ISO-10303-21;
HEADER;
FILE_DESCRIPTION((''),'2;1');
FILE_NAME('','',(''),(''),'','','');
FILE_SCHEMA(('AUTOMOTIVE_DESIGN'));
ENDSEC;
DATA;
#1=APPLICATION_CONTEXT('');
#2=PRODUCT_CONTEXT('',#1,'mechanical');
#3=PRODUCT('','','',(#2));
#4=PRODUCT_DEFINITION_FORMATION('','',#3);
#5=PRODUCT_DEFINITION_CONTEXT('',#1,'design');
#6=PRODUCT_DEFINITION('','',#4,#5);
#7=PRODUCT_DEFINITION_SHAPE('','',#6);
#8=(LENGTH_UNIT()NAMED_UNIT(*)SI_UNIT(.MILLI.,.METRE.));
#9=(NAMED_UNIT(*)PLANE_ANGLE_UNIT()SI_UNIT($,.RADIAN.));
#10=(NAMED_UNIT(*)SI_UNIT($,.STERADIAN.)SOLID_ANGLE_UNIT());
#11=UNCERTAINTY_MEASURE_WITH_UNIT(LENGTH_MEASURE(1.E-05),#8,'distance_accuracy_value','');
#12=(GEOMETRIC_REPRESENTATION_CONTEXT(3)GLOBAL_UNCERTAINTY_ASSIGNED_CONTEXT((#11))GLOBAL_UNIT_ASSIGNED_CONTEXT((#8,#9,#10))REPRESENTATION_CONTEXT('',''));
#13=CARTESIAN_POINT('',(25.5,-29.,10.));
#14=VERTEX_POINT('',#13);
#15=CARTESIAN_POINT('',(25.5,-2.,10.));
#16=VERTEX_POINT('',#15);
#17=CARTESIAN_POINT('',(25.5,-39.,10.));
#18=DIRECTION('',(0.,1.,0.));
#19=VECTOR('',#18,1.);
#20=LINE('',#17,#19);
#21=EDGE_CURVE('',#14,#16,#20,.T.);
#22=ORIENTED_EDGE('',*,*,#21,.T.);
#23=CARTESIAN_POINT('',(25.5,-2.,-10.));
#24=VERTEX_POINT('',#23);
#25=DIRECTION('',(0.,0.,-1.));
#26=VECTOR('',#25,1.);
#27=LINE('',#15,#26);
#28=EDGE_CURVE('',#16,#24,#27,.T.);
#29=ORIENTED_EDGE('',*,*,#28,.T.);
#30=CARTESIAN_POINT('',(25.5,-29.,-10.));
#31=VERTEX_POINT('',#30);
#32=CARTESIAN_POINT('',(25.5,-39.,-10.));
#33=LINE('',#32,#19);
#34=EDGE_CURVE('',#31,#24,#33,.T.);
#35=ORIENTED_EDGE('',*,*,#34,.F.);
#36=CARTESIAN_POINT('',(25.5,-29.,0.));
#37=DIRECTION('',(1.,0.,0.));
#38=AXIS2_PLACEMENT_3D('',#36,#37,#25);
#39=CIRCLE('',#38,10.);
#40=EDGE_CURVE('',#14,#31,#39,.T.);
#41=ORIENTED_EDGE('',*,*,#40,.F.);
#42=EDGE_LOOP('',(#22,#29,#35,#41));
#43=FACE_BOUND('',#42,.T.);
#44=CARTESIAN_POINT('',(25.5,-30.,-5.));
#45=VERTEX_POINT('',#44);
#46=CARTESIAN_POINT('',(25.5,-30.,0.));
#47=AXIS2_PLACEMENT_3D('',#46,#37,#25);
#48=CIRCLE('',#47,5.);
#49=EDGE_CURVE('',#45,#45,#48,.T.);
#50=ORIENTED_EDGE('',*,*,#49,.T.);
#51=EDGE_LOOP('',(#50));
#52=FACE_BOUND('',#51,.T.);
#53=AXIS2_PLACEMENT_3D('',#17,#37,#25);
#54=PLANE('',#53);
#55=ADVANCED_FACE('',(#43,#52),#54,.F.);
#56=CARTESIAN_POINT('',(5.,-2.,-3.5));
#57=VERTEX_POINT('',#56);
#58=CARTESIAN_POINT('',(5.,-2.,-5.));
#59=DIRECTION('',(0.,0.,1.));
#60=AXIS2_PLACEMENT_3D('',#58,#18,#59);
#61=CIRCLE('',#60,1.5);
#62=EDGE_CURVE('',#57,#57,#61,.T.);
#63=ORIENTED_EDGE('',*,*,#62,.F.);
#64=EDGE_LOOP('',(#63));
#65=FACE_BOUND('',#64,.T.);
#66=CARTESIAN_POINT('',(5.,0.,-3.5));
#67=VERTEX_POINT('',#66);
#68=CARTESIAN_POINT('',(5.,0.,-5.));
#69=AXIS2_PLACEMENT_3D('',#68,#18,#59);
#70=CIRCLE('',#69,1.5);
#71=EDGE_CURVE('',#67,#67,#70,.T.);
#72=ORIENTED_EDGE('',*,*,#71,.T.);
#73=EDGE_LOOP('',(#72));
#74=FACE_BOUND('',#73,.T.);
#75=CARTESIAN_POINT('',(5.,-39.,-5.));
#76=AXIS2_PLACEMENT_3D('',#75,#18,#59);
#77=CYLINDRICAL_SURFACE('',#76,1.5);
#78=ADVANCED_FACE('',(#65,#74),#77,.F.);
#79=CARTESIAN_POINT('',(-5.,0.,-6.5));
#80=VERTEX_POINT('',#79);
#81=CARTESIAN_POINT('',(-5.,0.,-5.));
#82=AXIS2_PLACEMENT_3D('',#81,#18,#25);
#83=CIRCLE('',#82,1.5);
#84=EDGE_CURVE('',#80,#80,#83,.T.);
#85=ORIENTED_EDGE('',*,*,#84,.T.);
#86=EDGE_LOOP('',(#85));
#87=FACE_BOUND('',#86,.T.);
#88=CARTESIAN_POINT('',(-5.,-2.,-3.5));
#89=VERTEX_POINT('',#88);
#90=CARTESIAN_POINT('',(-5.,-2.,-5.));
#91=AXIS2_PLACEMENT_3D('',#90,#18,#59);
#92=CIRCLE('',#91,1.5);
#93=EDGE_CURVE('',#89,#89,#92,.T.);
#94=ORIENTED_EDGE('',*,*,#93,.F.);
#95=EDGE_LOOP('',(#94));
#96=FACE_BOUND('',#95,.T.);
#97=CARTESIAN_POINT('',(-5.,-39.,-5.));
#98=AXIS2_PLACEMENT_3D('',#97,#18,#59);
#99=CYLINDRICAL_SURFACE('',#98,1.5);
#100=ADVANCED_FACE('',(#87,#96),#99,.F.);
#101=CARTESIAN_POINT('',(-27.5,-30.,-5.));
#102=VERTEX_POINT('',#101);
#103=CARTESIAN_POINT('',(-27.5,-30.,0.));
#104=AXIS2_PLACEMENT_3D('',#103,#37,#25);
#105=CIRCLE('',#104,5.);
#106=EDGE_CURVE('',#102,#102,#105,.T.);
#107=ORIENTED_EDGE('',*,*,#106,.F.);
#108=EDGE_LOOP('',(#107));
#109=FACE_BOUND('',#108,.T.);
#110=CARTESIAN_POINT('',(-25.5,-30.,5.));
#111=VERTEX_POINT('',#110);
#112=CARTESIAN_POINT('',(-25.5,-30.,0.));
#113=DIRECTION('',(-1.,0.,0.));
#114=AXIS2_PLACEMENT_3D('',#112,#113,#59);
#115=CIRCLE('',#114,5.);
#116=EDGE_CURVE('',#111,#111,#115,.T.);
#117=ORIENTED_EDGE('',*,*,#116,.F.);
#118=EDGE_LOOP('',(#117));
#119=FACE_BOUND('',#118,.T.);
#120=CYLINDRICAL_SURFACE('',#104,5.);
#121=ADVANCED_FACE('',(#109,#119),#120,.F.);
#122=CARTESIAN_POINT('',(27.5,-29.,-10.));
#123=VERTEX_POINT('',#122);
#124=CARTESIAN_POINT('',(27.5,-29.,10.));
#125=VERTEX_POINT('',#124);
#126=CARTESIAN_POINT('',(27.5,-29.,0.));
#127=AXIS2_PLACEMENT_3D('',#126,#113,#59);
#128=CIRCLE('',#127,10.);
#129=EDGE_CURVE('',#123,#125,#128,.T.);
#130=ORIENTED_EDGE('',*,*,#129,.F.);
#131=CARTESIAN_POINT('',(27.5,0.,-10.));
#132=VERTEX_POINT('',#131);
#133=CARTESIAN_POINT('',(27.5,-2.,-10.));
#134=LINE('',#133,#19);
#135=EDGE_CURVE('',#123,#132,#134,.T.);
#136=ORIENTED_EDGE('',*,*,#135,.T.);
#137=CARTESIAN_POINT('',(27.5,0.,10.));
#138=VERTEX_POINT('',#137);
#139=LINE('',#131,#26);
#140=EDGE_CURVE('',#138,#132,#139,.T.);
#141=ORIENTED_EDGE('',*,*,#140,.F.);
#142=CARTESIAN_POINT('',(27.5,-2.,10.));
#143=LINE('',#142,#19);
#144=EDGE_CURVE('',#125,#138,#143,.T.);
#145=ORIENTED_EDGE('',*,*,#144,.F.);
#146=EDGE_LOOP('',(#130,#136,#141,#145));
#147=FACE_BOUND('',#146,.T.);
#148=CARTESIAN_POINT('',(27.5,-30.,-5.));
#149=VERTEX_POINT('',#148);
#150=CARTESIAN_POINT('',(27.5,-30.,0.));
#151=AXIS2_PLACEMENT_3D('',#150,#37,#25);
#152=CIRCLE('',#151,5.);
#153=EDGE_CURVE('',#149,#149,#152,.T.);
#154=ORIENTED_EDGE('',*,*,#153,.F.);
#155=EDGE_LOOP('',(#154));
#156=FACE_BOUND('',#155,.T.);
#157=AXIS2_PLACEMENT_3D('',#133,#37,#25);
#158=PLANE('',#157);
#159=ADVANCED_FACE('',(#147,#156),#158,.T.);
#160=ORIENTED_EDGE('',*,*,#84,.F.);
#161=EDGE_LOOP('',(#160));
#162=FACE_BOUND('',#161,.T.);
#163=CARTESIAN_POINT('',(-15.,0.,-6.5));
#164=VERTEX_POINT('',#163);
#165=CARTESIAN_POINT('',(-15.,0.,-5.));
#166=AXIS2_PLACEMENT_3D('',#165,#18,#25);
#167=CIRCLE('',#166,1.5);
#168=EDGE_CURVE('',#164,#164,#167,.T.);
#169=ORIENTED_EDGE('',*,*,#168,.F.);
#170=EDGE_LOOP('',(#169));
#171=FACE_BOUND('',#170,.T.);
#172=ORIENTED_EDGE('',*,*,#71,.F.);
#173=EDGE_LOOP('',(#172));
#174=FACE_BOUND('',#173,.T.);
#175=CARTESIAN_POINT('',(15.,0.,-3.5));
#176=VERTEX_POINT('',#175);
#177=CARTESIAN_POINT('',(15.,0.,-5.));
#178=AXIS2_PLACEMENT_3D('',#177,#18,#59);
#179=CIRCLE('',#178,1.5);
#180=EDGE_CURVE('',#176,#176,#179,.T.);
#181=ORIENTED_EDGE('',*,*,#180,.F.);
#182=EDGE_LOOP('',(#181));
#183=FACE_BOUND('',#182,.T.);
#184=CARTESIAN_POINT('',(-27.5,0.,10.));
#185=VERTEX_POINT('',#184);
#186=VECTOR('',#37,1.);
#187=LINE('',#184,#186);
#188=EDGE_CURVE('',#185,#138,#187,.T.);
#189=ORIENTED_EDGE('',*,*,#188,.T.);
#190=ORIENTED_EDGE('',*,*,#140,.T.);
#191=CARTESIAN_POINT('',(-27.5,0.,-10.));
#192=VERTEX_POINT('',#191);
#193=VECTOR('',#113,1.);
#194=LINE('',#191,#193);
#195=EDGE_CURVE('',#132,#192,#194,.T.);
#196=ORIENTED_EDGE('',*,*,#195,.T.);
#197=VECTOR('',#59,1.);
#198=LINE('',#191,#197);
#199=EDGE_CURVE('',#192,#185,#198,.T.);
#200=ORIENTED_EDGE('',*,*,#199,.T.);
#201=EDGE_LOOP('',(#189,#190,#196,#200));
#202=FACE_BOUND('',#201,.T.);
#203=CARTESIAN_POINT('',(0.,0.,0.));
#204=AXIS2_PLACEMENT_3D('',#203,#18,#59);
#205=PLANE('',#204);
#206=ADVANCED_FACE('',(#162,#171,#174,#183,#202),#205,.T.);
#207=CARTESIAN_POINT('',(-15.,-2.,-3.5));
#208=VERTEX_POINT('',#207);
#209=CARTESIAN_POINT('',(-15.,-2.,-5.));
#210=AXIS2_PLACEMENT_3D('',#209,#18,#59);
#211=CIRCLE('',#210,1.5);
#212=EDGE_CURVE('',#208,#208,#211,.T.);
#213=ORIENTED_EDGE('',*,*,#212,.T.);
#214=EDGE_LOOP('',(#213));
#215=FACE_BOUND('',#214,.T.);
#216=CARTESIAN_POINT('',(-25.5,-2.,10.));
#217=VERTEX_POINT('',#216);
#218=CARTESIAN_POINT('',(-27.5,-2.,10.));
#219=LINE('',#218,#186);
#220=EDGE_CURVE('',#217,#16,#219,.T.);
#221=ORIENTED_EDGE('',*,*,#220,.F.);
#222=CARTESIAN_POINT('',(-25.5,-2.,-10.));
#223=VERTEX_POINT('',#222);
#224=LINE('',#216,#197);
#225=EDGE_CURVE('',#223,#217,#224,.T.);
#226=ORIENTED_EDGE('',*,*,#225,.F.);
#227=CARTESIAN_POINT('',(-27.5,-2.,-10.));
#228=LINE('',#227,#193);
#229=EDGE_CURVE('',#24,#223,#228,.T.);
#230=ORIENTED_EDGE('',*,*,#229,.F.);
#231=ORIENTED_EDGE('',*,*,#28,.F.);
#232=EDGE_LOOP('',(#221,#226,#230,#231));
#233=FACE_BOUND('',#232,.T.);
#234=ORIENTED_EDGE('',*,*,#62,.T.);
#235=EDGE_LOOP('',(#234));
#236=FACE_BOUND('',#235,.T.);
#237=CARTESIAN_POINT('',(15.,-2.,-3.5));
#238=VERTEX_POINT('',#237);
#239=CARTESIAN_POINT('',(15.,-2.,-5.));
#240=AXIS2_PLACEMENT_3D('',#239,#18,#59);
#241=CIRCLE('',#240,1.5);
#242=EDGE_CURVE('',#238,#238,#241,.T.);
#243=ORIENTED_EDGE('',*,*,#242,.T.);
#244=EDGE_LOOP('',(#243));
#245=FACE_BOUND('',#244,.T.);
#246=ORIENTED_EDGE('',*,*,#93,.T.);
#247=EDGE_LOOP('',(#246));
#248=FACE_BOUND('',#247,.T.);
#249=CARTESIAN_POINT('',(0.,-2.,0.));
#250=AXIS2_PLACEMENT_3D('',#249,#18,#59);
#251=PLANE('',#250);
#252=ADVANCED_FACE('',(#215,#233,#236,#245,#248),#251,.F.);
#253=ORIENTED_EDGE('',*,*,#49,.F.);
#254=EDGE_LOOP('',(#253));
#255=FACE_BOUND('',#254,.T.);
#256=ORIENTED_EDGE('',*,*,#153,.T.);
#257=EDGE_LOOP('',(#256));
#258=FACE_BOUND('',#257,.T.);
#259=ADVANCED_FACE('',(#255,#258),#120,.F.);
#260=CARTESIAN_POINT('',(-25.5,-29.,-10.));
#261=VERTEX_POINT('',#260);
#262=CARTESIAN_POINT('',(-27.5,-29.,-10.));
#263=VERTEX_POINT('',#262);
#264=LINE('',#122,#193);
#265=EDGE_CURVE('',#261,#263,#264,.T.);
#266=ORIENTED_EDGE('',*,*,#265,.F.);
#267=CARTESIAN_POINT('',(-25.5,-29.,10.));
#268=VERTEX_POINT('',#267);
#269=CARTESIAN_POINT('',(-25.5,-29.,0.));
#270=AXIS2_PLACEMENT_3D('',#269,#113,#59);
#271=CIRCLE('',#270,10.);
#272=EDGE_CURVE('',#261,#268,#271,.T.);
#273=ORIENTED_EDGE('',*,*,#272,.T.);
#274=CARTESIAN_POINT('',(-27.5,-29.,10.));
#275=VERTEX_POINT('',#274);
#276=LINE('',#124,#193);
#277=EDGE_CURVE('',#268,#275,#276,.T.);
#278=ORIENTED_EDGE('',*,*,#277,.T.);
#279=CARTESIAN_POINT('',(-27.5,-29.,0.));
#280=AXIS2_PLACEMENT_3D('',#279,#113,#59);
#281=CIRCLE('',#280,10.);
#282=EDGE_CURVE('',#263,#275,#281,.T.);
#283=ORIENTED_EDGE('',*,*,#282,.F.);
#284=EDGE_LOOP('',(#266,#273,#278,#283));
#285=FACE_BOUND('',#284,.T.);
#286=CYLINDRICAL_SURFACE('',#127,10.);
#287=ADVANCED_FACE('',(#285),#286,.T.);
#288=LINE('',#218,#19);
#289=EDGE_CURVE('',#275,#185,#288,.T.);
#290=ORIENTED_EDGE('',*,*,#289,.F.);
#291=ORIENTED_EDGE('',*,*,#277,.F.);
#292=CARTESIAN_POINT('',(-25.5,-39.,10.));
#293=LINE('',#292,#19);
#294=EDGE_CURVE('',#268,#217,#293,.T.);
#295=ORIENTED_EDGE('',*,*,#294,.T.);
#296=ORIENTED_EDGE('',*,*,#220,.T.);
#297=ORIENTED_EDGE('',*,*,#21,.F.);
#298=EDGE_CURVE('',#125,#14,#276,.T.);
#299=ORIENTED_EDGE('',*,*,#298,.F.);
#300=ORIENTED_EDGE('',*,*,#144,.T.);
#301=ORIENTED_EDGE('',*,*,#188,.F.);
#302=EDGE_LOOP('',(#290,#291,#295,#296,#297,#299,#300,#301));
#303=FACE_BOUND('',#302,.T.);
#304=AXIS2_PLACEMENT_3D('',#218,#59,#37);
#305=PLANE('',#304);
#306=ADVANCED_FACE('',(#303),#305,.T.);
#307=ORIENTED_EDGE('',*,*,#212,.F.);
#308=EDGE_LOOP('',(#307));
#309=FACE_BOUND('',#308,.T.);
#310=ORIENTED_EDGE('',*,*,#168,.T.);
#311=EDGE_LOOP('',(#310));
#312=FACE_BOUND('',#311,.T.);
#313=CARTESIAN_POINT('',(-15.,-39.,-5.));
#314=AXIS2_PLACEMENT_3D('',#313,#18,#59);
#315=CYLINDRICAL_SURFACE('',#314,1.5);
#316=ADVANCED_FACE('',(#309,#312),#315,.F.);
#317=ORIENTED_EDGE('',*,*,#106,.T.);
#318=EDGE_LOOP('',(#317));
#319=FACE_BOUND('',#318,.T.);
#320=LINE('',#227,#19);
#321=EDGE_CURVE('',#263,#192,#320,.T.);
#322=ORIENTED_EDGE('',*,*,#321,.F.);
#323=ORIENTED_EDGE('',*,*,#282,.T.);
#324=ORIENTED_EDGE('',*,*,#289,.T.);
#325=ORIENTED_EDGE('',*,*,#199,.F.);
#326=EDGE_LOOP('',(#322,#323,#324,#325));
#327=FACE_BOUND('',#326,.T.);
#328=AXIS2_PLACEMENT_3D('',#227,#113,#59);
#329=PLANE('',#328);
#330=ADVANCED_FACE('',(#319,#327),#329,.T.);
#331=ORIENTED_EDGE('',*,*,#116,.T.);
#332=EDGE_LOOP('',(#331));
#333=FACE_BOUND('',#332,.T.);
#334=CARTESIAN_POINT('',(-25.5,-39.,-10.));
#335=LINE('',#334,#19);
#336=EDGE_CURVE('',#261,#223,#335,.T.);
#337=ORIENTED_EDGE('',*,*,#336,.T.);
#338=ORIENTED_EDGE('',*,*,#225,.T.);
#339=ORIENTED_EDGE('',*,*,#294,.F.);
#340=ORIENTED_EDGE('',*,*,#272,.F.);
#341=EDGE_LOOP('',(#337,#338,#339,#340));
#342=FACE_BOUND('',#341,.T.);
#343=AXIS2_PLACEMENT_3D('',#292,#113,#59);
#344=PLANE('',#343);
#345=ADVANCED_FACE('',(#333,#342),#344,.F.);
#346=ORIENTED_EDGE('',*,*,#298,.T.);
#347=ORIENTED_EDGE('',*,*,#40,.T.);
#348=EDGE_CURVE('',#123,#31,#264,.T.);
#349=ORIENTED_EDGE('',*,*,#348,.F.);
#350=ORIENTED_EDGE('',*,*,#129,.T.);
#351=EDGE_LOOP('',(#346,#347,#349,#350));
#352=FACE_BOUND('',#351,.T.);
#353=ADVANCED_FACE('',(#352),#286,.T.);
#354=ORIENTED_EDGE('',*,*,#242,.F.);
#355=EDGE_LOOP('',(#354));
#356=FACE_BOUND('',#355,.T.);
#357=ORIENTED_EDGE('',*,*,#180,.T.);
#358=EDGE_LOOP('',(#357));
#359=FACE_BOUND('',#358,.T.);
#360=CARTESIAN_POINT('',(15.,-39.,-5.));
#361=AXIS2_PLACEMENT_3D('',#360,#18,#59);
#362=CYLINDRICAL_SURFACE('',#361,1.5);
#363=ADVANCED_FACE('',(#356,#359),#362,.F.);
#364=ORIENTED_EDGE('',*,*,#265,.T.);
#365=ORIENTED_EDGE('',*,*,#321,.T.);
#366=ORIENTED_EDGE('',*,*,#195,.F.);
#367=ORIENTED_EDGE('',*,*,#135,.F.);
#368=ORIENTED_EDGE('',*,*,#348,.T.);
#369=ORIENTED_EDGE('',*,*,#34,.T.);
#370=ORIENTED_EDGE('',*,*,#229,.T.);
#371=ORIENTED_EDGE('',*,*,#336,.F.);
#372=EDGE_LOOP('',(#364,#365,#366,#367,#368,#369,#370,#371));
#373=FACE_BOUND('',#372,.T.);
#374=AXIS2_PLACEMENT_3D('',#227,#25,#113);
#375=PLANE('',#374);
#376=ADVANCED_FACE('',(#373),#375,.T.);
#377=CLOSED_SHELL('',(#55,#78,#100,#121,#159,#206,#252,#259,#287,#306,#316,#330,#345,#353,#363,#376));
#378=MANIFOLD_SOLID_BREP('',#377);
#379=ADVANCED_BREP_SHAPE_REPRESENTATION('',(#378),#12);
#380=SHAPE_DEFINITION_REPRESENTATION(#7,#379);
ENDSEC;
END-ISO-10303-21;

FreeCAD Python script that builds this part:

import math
import FreeCAD as App
import Part
import Sketcher

doc = App.newDocument("Part")
params = doc.addObject("Spreadsheet::Sheet", "Params")
for row, (alias, value) in enumerate([
    ("sketch1_width", "55 mm"),
    ("sketch1_height", "20 mm"),
    ("pad1_length", "2 mm"),
    ("sketch2_width", "2 mm"),
    ("sketch2_height", "20 mm"),
    ("pad2_length", "37 mm"),
    ("sketch3_diameter", "10 mm"),
    ("sketch4_radius", "10 mm"),
    ("sketch5_diameter", "3 mm"),
], start=1):
    params.set(f"A{row}", alias)
    params.set(f"B{row}", "=" + value)
    params.setAlias(f"B{row}", alias)

body = doc.addObject("PartDesign::Body", "Body")

# Sketch on XZ plane
sketch1 = body.newObject("Sketcher::SketchObject", "Sketch")
sketch1.AttachmentSupport = (doc.getObject("XZ_Plane"), [""])
sketch1.MapMode = "FlatFace"
sketch1.addGeometry(Part.LineSegment(App.Vector(-28, -10, 0), App.Vector(-28, 10, 0)), False)
sketch1.addGeometry(Part.LineSegment(App.Vector(-28, 10, 0), App.Vector(28, 10, 0)), False)
sketch1.addGeometry(Part.LineSegment(App.Vector(28, 10, 0), App.Vector(28, -10, 0)), False)
sketch1.addGeometry(Part.LineSegment(App.Vector(28, -10, 0), App.Vector(-28, -10, 0)), False)
sketch1.addConstraint(Sketcher.Constraint("Coincident", 0, 2, 1, 1))
sketch1.addConstraint(Sketcher.Constraint("Coincident", 1, 2, 2, 1))
sketch1.addConstraint(Sketcher.Constraint("Coincident", 2, 2, 3, 1))
sketch1.addConstraint(Sketcher.Constraint("Coincident", 3, 2, 0, 1))
sketch1.addConstraint(Sketcher.Constraint("Vertical", 0))
sketch1.addConstraint(Sketcher.Constraint("Horizontal", 1))
sketch1.addConstraint(Sketcher.Constraint("Vertical", 2))
sketch1.addConstraint(Sketcher.Constraint("Horizontal", 3))
sketch1.addConstraint(Sketcher.Constraint("Symmetric", 0, 2, 2, 2, -1, 1))
sketch1.addConstraint(Sketcher.Constraint("DistanceX", 1, 1, 1, 2, 55.0))
sketch1.addConstraint(Sketcher.Constraint("DistanceY", 0, 1, 0, 2, 20.0))
sketch1.setExpression("Constraints[9]", "Params.sketch1_width")
sketch1.setExpression("Constraints[10]", "Params.sketch1_height")
pad1 = body.newObject("PartDesign::Pad", "Pad")
pad1.Profile = sketch1
pad1.setExpression("Length", "Params.pad1_length")

# Sketch on XZ plane
sketch2 = body.newObject("Sketcher::SketchObject", "Sketch001")
sketch2.AttachmentSupport = (doc.getObject("XZ_Plane"), [""])
sketch2.MapMode = "FlatFace"
sketch2.AttachmentOffset = App.Placement(App.Vector(0, 0, 2), App.Rotation())
sketch2.addGeometry(Part.LineSegment(App.Vector(-27.5, 10, 0), App.Vector(-27.5, -10, 0)), False)
sketch2.addGeometry(Part.LineSegment(App.Vector(-27.5, -10, 0), App.Vector(-25.5, -10, 0)), False)
sketch2.addGeometry(Part.LineSegment(App.Vector(-25.5, -10, 0), App.Vector(-25.5, 10, 0)), False)
sketch2.addGeometry(Part.LineSegment(App.Vector(-25.5, 10, 0), App.Vector(-27.5, 10, 0)), False)
sketch2.addGeometry(Part.LineSegment(App.Vector(25.5, 10, 0), App.Vector(25.5, -10, 0)), False)
sketch2.addGeometry(Part.LineSegment(App.Vector(25.5, -10, 0), App.Vector(27.5, -10, 0)), False)
sketch2.addGeometry(Part.LineSegment(App.Vector(27.5, -10, 0), App.Vector(27.5, 10, 0)), False)
sketch2.addGeometry(Part.LineSegment(App.Vector(27.5, 10, 0), App.Vector(25.5, 10, 0)), False)
sketch2.addConstraint(Sketcher.Constraint("Coincident", 0, 2, 1, 1))
sketch2.addConstraint(Sketcher.Constraint("Coincident", 1, 2, 2, 1))
sketch2.addConstraint(Sketcher.Constraint("Coincident", 2, 2, 3, 1))
sketch2.addConstraint(Sketcher.Constraint("Coincident", 3, 2, 0, 1))
sketch2.addConstraint(Sketcher.Constraint("Coincident", 4, 2, 5, 1))
sketch2.addConstraint(Sketcher.Constraint("Coincident", 5, 2, 6, 1))
sketch2.addConstraint(Sketcher.Constraint("Coincident", 6, 2, 7, 1))
sketch2.addConstraint(Sketcher.Constraint("Coincident", 7, 2, 4, 1))
sketch2.addConstraint(Sketcher.Constraint("Vertical", 0))
sketch2.addConstraint(Sketcher.Constraint("Horizontal", 1))
sketch2.addConstraint(Sketcher.Constraint("Vertical", 2))
sketch2.addConstraint(Sketcher.Constraint("Horizontal", 3))
sketch2.addConstraint(Sketcher.Constraint("Vertical", 4))
sketch2.addConstraint(Sketcher.Constraint("Horizontal", 5))
sketch2.addConstraint(Sketcher.Constraint("Vertical", 6))
sketch2.addConstraint(Sketcher.Constraint("Horizontal", 7))
sketch2.addConstraint(Sketcher.Constraint("Symmetric", 2, 2, 4, 2, -1, 1))
sketch2.addConstraint(Sketcher.Constraint("Symmetric", 0, 2, 6, 2, -1, 1))
sketch2.addConstraint(Sketcher.Constraint("Horizontal", 1, 2, 4, 2))
sketch2.addConstraint(Sketcher.Constraint("DistanceX", 1, 1, 1, 2, 2.0))
sketch2.addConstraint(Sketcher.Constraint("DistanceY", 0, 2, 0, 1, 20.0))
sketch2.addConstraint(Sketcher.Constraint("DistanceX", 1, 2, 4, 2, 51.0))
sketch2.setExpression("Constraints[19]", "Params.sketch2_width")
sketch2.setExpression("Constraints[20]", "Params.sketch2_height")
pad2 = body.newObject("PartDesign::Pad", "Pad001")
pad2.Profile = sketch2
pad2.setExpression("Length", "Params.pad2_length")

# Sketch on YZ plane
sketch3 = body.newObject("Sketcher::SketchObject", "Sketch002")
sketch3.AttachmentSupport = (doc.getObject("YZ_Plane"), [""])
sketch3.MapMode = "FlatFace"
sketch3.AttachmentOffset = App.Placement(App.Vector(0, 0, 27.5), App.Rotation())
sketch3.addGeometry(Part.Circle(App.Vector(-30, 0, 0), App.Vector(0, 0, 1), 5), False)
sketch3.addConstraint(Sketcher.Constraint("PointOnObject", 0, 3, -1))
sketch3.addConstraint(Sketcher.Constraint("Diameter", 0, 10.0))
sketch3.addConstraint(Sketcher.Constraint("DistanceX", 0, 3, -1, 1, 30.0))
sketch3.setExpression("Constraints[1]", "Params.sketch3_diameter")
pocket1 = body.newObject("PartDesign::Pocket", "Pocket")
pocket1.Profile = sketch3
pocket1.Type = "ThroughAll"

# Sketch on YZ plane
sketch4 = body.newObject("Sketcher::SketchObject", "Sketch003")
sketch4.AttachmentSupport = (doc.getObject("YZ_Plane"), [""])
sketch4.MapMode = "FlatFace"
sketch4.AttachmentOffset = App.Placement(App.Vector(0, 0, -27.5), App.Rotation())
sketch4.addGeometry(Part.ArcOfCircle(Part.Circle(App.Vector(-29, 0, 0), App.Vector(0, 0, 1), 10), math.radians(180), math.radians(270)), False)
sketch4.addGeometry(Part.LineSegment(App.Vector(-29, -10, 0), App.Vector(-39, -10, 0)), False)
sketch4.addGeometry(Part.LineSegment(App.Vector(-39, -10, 0), App.Vector(-39, 0, 0)), False)
sketch4.addGeometry(Part.LineSegment(App.Vector(-39, 10, 0), App.Vector(-29, 10, 0)), False)
sketch4.addGeometry(Part.ArcOfCircle(Part.Circle(App.Vector(-29, 0, 0), App.Vector(0, 0, 1), 10), math.radians(90), math.radians(180)), False)
sketch4.addGeometry(Part.LineSegment(App.Vector(-39, 0, 0), App.Vector(-39, 10, 0)), False)
sketch4.addConstraint(Sketcher.Constraint("Tangent", 0, 2, 1, 1))
sketch4.addConstraint(Sketcher.Constraint("Coincident", 1, 2, 2, 1))
sketch4.addConstraint(Sketcher.Constraint("Tangent", 2, 2, 0, 1))
sketch4.addConstraint(Sketcher.Constraint("Tangent", 3, 2, 4, 1))
sketch4.addConstraint(Sketcher.Constraint("Tangent", 4, 2, 5, 1))
sketch4.addConstraint(Sketcher.Constraint("Coincident", 5, 2, 3, 1))
sketch4.addConstraint(Sketcher.Constraint("Horizontal", 1))
sketch4.addConstraint(Sketcher.Constraint("Vertical", 2))
sketch4.addConstraint(Sketcher.Constraint("Horizontal", 3))
sketch4.addConstraint(Sketcher.Constraint("Vertical", 5))
sketch4.addConstraint(Sketcher.Constraint("Coincident", 4, 3, 0, 3))
sketch4.addConstraint(Sketcher.Constraint("Equal", 0, 4))
sketch4.addConstraint(Sketcher.Constraint("PointOnObject", 0, 3, -1))
sketch4.addConstraint(Sketcher.Constraint("Radius", 0, 10.0))
sketch4.addConstraint(Sketcher.Constraint("DistanceX", 0, 3, -1, 1, 29.0))
sketch4.setExpression("Constraints[13]", "Params.sketch4_radius")
pocket2 = body.newObject("PartDesign::Pocket", "Pocket001")
pocket2.Profile = sketch4
pocket2.Type = "ThroughAll"
pocket2.Reversed = True

# Sketch on XZ plane
sketch5 = body.newObject("Sketcher::SketchObject", "Sketch004")
sketch5.AttachmentSupport = (doc.getObject("XZ_Plane"), [""])
sketch5.MapMode = "FlatFace"
sketch5.addGeometry(Part.Circle(App.Vector(5, -5, 0), App.Vector(0, 0, 1), 1.5), False)
sketch5.addGeometry(Part.Circle(App.Vector(15, -5, 0), App.Vector(0, 0, 1), 1.5), False)
sketch5.addGeometry(Part.Circle(App.Vector(-15, -5, 0), App.Vector(0, 0, 1), 1.5), False)
sketch5.addGeometry(Part.Circle(App.Vector(-5, -5, 0), App.Vector(0, 0, 1), 1.5), False)
sketch5.addConstraint(Sketcher.Constraint("Equal", 0, 1))
sketch5.addConstraint(Sketcher.Constraint("Equal", 1, 2))
sketch5.addConstraint(Sketcher.Constraint("Equal", 2, 3))
sketch5.addConstraint(Sketcher.Constraint("Symmetric", 1, 3, 2, 3, -2))
sketch5.addConstraint(Sketcher.Constraint("Symmetric", 0, 3, 3, 3, -2))
sketch5.addConstraint(Sketcher.Constraint("Horizontal", 0, 3, 1, 3))
sketch5.addConstraint(Sketcher.Constraint("Diameter", 0, 3.0))
sketch5.addConstraint(Sketcher.Constraint("DistanceX", -1, 1, 0, 3, 5.0))
sketch5.addConstraint(Sketcher.Constraint("DistanceY", 0, 3, -1, 1, 5.0))
sketch5.addConstraint(Sketcher.Constraint("DistanceX", -1, 1, 1, 3, 15.0))
sketch5.setExpression("Constraints[6]", "Params.sketch5_diameter")
pocket3 = body.newObject("PartDesign::Pocket", "Pocket002")
pocket3.Profile = sketch5
pocket3.Type = "ThroughAll"
pocket3.Reversed = True

doc.recompute()
